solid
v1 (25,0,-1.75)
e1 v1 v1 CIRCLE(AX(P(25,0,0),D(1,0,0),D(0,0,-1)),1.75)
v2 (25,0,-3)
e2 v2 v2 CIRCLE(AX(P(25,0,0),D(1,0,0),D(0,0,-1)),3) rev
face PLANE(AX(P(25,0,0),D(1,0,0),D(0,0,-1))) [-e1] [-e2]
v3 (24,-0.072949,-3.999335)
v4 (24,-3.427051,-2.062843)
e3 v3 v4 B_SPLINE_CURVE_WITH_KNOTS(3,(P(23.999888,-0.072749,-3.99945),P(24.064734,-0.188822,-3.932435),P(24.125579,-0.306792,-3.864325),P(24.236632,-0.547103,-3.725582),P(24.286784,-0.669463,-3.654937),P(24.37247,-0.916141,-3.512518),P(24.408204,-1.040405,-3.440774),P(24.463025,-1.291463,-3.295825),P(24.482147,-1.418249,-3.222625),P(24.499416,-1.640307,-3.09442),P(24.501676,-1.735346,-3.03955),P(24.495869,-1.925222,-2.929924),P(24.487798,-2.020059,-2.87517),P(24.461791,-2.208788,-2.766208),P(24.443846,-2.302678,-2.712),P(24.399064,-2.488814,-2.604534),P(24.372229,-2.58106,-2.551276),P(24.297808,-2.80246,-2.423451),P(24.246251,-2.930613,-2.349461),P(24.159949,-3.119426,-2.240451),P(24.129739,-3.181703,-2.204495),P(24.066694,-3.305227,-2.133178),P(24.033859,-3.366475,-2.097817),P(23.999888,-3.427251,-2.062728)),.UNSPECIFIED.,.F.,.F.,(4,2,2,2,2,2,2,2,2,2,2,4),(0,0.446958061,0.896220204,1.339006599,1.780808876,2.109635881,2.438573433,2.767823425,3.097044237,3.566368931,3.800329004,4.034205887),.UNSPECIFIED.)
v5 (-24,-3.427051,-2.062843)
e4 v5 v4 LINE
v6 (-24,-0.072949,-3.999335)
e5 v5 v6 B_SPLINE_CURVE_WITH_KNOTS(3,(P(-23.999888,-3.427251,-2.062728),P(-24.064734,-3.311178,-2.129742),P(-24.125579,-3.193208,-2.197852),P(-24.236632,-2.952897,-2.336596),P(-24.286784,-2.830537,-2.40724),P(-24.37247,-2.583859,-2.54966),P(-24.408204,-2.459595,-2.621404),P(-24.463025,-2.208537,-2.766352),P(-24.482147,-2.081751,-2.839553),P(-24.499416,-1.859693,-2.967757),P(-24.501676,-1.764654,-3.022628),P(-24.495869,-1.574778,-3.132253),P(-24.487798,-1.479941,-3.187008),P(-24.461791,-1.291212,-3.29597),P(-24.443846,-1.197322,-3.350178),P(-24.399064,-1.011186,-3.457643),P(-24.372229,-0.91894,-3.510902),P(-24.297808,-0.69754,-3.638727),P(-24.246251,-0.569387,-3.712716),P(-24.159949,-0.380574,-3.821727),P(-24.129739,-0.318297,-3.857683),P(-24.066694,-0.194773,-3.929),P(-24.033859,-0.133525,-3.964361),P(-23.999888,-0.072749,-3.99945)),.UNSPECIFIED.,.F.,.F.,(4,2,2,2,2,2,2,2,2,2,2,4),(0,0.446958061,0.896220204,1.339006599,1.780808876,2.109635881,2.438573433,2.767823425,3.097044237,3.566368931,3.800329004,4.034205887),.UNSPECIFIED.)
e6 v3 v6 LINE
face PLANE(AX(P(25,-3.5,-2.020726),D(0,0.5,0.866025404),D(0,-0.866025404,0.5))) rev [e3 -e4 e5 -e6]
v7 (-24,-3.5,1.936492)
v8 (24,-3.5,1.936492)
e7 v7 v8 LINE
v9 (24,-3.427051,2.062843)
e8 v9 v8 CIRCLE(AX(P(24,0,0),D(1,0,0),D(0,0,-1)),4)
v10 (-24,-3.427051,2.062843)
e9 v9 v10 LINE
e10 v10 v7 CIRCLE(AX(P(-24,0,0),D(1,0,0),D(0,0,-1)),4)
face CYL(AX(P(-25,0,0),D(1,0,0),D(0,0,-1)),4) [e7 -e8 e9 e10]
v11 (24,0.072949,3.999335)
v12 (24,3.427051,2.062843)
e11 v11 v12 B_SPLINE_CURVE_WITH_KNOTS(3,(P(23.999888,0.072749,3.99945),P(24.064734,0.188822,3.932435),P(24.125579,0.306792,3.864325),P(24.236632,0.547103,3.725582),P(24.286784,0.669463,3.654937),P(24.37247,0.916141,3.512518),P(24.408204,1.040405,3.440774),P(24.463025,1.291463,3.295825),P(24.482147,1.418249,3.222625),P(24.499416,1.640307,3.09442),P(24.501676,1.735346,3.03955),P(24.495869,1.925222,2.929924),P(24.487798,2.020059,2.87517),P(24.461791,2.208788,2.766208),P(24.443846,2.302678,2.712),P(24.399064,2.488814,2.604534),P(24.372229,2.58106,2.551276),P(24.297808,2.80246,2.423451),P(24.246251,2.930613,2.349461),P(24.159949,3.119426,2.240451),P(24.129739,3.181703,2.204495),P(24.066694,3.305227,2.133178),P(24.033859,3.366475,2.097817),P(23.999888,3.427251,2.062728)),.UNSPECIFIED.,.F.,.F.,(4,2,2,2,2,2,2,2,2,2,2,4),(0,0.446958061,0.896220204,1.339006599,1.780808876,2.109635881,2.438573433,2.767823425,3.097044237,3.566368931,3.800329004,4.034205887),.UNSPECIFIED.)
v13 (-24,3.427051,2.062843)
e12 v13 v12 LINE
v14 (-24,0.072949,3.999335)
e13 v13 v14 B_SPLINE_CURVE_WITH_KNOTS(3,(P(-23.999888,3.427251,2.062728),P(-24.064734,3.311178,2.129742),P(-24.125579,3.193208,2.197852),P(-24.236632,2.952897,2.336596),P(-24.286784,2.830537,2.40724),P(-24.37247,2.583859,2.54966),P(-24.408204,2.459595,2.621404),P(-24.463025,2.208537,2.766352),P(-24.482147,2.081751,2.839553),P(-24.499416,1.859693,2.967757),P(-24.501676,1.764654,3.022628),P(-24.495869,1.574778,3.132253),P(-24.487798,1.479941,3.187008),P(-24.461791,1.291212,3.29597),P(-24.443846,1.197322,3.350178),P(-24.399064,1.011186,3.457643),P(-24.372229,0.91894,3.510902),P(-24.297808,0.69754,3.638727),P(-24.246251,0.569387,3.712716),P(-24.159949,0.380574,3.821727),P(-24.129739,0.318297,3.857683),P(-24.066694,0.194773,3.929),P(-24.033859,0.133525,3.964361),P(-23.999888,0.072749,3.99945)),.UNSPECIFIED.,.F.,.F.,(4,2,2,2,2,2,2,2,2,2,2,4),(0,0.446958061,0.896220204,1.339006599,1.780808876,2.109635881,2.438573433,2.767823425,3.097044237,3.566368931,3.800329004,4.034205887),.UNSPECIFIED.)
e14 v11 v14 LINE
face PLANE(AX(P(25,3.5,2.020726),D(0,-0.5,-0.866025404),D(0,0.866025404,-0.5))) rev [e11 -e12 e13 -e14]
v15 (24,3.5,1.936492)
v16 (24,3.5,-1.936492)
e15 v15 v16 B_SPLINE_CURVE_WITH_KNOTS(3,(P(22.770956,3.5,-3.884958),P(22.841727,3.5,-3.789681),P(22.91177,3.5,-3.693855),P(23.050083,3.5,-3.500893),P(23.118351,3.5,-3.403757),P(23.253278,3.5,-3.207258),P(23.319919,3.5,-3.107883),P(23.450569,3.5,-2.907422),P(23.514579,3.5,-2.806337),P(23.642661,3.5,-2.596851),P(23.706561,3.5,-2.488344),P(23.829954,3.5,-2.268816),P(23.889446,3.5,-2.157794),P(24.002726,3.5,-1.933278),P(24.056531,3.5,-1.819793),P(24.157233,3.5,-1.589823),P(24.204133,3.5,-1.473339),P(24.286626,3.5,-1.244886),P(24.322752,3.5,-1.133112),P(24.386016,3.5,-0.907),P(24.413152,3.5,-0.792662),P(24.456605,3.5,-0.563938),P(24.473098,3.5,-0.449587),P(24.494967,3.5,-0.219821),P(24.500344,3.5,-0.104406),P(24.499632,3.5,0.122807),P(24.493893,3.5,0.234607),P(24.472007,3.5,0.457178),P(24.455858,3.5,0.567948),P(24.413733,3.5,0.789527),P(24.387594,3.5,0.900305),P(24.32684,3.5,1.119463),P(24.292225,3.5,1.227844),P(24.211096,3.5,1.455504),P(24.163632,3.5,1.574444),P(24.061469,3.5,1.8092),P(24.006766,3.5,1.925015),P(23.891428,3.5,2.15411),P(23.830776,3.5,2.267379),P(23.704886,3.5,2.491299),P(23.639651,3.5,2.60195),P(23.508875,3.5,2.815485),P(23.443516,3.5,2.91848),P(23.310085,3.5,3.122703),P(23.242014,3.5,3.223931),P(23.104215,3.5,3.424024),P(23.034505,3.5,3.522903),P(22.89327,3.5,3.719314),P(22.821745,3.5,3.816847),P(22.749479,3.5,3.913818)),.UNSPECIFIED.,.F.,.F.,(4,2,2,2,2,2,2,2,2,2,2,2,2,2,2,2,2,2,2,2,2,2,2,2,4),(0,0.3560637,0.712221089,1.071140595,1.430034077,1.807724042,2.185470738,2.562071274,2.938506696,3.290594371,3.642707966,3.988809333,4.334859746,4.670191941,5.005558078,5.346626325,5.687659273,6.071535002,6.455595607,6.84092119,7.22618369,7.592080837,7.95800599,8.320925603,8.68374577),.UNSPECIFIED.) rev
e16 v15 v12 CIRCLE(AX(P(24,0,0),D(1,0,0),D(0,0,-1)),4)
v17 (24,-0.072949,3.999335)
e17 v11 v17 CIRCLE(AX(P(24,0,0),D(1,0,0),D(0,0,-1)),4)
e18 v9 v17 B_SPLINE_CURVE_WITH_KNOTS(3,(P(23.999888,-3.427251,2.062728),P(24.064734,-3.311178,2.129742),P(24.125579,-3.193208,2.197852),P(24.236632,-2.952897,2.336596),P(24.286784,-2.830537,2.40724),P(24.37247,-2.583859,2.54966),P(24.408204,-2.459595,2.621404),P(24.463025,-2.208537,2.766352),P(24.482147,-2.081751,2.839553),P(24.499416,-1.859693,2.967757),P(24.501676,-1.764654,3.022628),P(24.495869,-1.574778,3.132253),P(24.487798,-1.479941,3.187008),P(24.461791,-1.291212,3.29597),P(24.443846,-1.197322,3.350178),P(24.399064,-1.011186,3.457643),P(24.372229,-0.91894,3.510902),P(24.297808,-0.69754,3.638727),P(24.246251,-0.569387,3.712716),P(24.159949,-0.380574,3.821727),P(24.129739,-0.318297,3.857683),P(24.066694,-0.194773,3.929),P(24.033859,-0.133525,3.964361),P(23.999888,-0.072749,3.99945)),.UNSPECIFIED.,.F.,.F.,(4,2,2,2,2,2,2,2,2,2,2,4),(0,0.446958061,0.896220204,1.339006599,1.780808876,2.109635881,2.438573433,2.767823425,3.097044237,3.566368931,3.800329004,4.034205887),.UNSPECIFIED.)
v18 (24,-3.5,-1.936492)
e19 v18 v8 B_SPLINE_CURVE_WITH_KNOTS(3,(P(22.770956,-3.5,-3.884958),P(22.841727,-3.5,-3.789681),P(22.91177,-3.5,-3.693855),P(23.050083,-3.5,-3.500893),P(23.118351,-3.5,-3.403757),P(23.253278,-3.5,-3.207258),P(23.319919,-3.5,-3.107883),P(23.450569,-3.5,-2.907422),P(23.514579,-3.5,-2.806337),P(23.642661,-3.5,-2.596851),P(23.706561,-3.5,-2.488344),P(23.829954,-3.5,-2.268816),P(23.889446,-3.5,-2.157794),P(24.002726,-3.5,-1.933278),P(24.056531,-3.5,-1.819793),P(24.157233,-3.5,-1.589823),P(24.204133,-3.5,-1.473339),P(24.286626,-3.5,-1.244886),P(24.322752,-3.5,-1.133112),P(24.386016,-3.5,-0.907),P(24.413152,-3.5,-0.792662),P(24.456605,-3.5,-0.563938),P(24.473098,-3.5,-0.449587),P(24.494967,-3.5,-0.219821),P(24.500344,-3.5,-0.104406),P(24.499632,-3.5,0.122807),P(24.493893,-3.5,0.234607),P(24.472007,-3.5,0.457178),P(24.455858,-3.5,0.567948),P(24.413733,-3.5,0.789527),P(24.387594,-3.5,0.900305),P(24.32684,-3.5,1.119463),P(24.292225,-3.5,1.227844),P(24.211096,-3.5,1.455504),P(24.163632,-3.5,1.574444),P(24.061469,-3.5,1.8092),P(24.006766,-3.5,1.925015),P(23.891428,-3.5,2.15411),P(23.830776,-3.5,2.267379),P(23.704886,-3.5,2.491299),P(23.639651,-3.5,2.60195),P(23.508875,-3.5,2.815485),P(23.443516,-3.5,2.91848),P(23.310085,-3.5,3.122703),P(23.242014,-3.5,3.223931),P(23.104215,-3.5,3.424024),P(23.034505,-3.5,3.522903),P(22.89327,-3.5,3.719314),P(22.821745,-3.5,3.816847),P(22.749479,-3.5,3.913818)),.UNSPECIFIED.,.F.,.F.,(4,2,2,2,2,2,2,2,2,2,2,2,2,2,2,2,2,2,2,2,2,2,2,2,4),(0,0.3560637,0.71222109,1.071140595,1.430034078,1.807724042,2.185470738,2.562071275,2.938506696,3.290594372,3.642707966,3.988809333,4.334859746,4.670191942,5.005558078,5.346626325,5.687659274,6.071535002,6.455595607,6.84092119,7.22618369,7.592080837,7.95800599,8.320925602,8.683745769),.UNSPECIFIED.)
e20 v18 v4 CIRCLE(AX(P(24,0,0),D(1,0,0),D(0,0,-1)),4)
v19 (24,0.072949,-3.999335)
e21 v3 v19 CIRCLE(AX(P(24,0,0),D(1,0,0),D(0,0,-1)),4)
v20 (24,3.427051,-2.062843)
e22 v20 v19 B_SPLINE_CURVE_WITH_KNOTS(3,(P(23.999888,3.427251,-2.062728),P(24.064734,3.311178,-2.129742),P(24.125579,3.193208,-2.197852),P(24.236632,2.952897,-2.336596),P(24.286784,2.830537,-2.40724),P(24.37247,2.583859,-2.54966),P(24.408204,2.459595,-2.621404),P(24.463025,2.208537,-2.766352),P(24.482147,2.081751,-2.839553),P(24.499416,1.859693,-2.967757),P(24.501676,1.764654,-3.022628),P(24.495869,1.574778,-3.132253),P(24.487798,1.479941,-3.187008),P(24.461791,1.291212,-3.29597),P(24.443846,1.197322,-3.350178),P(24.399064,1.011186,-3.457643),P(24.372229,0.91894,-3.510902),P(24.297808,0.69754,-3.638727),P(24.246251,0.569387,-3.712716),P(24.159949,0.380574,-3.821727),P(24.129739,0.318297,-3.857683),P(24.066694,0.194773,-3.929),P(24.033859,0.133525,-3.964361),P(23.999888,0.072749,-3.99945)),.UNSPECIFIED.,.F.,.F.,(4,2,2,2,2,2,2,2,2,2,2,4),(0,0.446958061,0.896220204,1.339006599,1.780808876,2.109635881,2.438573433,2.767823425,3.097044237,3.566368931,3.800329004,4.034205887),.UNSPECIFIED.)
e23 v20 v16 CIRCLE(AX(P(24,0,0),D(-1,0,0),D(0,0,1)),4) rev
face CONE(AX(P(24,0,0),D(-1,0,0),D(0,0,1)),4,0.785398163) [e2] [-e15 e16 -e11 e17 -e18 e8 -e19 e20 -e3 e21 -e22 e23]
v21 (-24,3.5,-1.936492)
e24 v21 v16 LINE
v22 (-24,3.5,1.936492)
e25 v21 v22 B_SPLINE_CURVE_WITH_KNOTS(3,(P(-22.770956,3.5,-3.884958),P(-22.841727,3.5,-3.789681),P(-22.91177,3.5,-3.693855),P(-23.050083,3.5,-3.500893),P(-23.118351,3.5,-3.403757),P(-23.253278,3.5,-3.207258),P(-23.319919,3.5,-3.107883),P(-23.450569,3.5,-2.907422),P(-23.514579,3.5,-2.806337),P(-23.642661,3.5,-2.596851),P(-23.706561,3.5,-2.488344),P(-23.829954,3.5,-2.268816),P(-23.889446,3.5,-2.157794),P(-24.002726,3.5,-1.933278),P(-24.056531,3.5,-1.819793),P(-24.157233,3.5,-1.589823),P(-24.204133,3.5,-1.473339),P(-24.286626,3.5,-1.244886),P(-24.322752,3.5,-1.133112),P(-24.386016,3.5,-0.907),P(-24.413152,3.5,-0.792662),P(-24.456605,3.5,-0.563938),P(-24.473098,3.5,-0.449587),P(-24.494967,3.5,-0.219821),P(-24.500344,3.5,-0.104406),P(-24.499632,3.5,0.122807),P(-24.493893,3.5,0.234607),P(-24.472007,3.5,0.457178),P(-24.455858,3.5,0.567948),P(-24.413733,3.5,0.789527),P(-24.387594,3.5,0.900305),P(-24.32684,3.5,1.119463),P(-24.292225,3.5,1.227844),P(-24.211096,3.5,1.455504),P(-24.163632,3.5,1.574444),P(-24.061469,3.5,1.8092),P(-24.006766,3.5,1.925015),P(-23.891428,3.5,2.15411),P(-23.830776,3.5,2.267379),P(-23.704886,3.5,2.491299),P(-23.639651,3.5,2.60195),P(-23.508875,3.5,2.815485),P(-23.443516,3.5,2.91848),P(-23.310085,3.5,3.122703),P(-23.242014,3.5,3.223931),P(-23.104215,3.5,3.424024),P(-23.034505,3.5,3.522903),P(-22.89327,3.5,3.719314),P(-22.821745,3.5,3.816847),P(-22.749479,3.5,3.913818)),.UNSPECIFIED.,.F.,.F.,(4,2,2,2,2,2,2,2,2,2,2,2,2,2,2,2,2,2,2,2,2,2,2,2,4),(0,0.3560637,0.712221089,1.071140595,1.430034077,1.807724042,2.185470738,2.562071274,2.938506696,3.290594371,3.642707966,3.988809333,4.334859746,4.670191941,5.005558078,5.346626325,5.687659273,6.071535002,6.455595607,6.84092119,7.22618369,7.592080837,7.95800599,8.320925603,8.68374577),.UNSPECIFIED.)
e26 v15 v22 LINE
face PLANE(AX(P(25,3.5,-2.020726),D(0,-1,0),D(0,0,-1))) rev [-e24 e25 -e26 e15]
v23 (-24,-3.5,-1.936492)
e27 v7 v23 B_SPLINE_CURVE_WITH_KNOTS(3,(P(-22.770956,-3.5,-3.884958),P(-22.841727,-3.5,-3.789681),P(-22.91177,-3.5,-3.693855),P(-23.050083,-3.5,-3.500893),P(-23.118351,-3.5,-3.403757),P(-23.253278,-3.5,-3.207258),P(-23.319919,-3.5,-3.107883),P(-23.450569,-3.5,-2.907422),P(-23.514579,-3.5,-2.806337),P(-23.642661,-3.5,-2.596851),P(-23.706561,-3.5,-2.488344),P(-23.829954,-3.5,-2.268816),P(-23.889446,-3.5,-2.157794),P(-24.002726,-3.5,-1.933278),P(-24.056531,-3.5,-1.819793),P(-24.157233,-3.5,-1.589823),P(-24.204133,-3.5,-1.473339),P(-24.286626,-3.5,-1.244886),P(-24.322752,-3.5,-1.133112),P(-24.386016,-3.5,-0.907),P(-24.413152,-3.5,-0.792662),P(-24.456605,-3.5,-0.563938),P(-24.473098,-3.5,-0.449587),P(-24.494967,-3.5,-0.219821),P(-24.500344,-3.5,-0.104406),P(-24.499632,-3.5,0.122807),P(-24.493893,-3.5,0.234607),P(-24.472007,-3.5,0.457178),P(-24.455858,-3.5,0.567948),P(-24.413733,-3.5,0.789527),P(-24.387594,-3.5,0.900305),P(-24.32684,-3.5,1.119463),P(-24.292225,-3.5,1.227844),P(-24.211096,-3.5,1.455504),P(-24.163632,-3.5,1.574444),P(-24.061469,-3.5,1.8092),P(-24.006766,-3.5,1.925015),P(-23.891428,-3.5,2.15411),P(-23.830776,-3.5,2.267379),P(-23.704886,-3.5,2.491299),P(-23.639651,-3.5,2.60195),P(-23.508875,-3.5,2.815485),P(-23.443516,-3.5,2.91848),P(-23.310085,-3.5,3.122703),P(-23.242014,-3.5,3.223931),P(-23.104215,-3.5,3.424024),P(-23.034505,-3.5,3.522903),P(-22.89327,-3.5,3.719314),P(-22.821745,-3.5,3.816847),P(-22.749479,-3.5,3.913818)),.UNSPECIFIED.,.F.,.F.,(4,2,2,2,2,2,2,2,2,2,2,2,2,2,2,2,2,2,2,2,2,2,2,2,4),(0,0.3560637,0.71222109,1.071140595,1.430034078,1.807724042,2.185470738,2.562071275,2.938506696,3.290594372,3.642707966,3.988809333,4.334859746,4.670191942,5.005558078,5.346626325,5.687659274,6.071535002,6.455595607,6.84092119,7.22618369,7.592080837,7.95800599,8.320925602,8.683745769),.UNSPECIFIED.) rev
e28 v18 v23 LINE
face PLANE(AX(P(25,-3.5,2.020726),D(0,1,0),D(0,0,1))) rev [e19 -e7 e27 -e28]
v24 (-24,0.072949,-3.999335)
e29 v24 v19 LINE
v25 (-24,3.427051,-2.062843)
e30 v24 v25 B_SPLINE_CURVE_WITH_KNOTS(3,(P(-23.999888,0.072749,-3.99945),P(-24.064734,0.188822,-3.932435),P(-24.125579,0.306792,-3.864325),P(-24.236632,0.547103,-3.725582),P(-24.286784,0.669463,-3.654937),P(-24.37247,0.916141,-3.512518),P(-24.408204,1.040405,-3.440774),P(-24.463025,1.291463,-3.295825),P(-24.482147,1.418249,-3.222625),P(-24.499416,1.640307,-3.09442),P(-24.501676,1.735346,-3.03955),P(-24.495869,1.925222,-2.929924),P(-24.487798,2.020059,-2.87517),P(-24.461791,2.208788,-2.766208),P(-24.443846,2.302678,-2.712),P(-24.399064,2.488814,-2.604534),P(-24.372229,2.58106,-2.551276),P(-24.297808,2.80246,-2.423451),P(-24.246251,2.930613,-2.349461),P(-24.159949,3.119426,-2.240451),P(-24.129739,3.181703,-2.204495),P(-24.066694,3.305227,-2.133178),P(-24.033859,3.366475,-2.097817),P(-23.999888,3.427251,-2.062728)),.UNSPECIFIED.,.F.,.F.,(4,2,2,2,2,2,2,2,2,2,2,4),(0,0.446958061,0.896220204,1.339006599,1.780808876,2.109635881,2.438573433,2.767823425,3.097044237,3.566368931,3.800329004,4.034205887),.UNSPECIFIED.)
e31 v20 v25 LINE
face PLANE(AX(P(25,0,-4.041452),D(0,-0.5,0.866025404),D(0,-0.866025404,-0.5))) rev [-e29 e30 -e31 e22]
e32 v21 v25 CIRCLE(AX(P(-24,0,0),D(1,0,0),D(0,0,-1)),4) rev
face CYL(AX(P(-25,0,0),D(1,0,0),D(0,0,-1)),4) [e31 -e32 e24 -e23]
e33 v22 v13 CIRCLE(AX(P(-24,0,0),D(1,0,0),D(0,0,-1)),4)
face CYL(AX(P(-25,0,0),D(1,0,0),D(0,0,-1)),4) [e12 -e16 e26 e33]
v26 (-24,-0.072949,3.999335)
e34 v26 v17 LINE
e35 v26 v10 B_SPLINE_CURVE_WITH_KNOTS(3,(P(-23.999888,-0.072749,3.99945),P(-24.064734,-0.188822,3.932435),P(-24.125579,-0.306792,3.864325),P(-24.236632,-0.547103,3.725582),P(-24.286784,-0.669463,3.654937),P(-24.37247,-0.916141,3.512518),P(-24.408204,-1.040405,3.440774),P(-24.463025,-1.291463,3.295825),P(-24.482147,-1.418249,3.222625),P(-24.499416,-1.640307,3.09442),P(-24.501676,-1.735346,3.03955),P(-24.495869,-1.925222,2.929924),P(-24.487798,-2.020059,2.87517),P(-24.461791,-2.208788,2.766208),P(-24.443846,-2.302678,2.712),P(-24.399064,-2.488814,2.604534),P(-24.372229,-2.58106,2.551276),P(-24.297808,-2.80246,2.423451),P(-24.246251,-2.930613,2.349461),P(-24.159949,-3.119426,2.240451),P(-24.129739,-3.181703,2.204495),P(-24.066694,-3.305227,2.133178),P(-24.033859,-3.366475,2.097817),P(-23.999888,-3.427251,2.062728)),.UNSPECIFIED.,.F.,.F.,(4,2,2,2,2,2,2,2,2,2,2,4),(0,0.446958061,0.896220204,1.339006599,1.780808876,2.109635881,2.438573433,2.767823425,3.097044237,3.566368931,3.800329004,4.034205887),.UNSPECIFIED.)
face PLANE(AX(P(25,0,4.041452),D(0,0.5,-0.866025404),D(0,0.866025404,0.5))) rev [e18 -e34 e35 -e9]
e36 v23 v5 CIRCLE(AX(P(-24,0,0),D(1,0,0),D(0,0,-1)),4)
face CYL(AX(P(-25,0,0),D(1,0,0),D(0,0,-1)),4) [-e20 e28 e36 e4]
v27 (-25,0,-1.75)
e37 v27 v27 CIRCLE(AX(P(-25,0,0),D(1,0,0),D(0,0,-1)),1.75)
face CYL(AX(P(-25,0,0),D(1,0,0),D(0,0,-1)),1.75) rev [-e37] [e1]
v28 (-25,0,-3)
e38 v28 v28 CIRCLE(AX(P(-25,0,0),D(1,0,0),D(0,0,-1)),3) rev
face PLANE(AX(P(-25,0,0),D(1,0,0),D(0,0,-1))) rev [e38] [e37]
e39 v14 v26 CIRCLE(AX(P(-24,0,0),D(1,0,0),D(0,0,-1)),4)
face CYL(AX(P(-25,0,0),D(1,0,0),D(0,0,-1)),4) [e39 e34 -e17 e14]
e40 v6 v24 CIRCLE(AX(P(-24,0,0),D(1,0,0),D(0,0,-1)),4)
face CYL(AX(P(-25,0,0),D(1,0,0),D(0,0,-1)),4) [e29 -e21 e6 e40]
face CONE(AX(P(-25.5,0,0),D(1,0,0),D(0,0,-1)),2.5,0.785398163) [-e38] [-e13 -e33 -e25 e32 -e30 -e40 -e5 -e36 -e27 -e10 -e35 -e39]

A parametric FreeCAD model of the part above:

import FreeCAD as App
import Part
import Sketcher
from FreeCAD import Vector
Q = App.Units.Quantity

doc = App.newDocument("Part")
body = doc.addObject("PartDesign::Body", "Body")

# Sketch on YZ plane
sketch1 = body.newObject("Sketcher::SketchObject", "Sketch")
sketch1.AttachmentSupport = (doc.getObject("YZ_Plane"), [""])
sketch1.MapMode = "FlatFace"
sketch1.addGeometry(Part.LineSegment(Vector(0, -4, 0), Vector(3.5, -2, 0)), False)
sketch1.addGeometry(Part.LineSegment(Vector(3.5, -2, 0), Vector(3.5, 2, 0)), False)
sketch1.addGeometry(Part.LineSegment(Vector(3.5, 2, 0), Vector(0, 4, 0)), False)
sketch1.addGeometry(Part.LineSegment(Vector(0, 4, 0), Vector(-3.5, 2, 0)), False)
sketch1.addGeometry(Part.LineSegment(Vector(-3.5, 2, 0), Vector(-3.5, -2, 0)), False)
sketch1.addGeometry(Part.LineSegment(Vector(-3.5, -2, 0), Vector(0, -4, 0)), False)
sketch1.addConstraint(Sketcher.Constraint("Coincident", 0, 2, 1, 1))
sketch1.addConstraint(Sketcher.Constraint("Coincident", 1, 2, 2, 1))
sketch1.addConstraint(Sketcher.Constraint("Coincident", 2, 2, 3, 1))
sketch1.addConstraint(Sketcher.Constraint("Coincident", 3, 2, 4, 1))
sketch1.addConstraint(Sketcher.Constraint("Coincident", 4, 2, 5, 1))
sketch1.addConstraint(Sketcher.Constraint("Coincident", 5, 2, 0, 1))
sketch1.addConstraint(Sketcher.Constraint("Vertical", 1))
sketch1.addConstraint(Sketcher.Constraint("Vertical", 4))
sketch1.addConstraint(Sketcher.Constraint("Symmetric", 0, 2, 3, 2, -1, 1))
sketch1.addConstraint(Sketcher.Constraint("Symmetric", 2, 2, 5, 2, -1, 1))
sketch1.addConstraint(Sketcher.Constraint("PointOnObject", 2, 2, -2))
sketch1.addConstraint(Sketcher.Constraint("Parallel", 2, 5))
sketch1.addConstraint(Sketcher.Constraint("Horizontal", 1, 2, 3, 2))
sketch1.addConstraint(Sketcher.Constraint("Angle", 0, Q("30 deg")))
sketch1.addConstraint(Sketcher.Constraint("DistanceX", 3, 2, 1, 2, 7.0))
sketch1.addConstraint(Sketcher.Constraint("DistanceY", 1, 1, 1, 2, 4.041452))
pad1 = body.newObject("PartDesign::Pad", "Pad")
pad1.Profile = sketch1
pad1.Length = 50
pad1.Midplane = True

# Sketch on YZ plane
sketch2 = body.newObject("Sketcher::SketchObject", "Sketch001")
sketch2.AttachmentSupport = (doc.getObject("YZ_Plane"), [""])
sketch2.MapMode = "FlatFace"
sketch2.addGeometry(Part.Circle(Vector(0, 0, 0), Vector(0, 0, 1), 5), False)
sketch2.addGeometry(Part.Circle(Vector(0, 0, 0), Vector(0, 0, 1), 4), False)
sketch2.addConstraint(Sketcher.Constraint("Coincident", 0, 3, -1, 1))
sketch2.addConstraint(Sketcher.Constraint("Coincident", 1, 3, -1, 1))
sketch2.addConstraint(Sketcher.Constraint("Diameter", 0, 10.0))
sketch2.addConstraint(Sketcher.Constraint("Diameter", 1, 8.0))
pocket1 = body.newObject("PartDesign::Pocket", "Pocket")
pocket1.Profile = sketch2
pocket1.Type = "ThroughAll"
pocket1.Midplane = True

# Sketch on YZ plane
sketch3 = body.newObject("Sketcher::SketchObject", "Sketch002")
sketch3.AttachmentSupport = (doc.getObject("YZ_Plane"), [""])
sketch3.MapMode = "FlatFace"
sketch3.addGeometry(Part.Circle(Vector(0, 0, 0), Vector(0, 0, 1), 1.8), False)
sketch3.addConstraint(Sketcher.Constraint("Coincident", 0, 3, -1, 1))
sketch3.addConstraint(Sketcher.Constraint("Diameter", 0, 3.5))
pocket2 = body.newObject("PartDesign::Pocket", "Pocket001")
pocket2.Profile = sketch3
pocket2.Type = "ThroughAll"
pocket2.Midplane = True

# Sketch on XY plane
sketch4 = body.newObject("Sketcher::SketchObject", "Sketch003")
sketch4.AttachmentSupport = (doc.getObject("XY_Plane"), [""])
sketch4.MapMode = "FlatFace"
sketch4.addGeometry(Part.LineSegment(Vector(-24, 4, 0), Vector(-25.5, 4, 0)), False)
sketch4.addGeometry(Part.LineSegment(Vector(-25.5, 4, 0), Vector(-25.5, 2.5, 0)), False)
sketch4.addGeometry(Part.LineSegment(Vector(-25.5, 2.5, 0), Vector(-24, 4, 0)), False)
sketch4.addGeometry(Part.LineSegment(Vector(24, 4, 0), Vector(25.5, 2.5, 0)), False)
sketch4.addGeometry(Part.LineSegment(Vector(25.5, 2.5, 0), Vector(25.5, 4, 0)), False)
sketch4.addGeometry(Part.LineSegment(Vector(25.5, 4, 0), Vector(24, 4, 0)), False)
sketch4.addConstraint(Sketcher.Constraint("Coincident", 0, 2, 1, 1))
sketch4.addConstraint(Sketcher.Constraint("Coincident", 1, 2, 2, 1))
sketch4.addConstraint(Sketcher.Constraint("Coincident", 2, 2, 0, 1))
sketch4.addConstraint(Sketcher.Constraint("Coincident", 3, 2, 4, 1))
sketch4.addConstraint(Sketcher.Constraint("Coincident", 4, 2, 5, 1))
sketch4.addConstraint(Sketcher.Constraint("Coincident", 5, 2, 3, 1))
sketch4.addConstraint(Sketcher.Constraint("Horizontal", 0))
sketch4.addConstraint(Sketcher.Constraint("Vertical", 1))
sketch4.addConstraint(Sketcher.Constraint("Vertical", 4))
sketch4.addConstraint(Sketcher.Constraint("Horizontal", 5))
sketch4.addConstraint(Sketcher.Constraint("Symmetric", 1, 2, 3, 2, -2))
sketch4.addConstraint(Sketcher.Constraint("Symmetric", 2, 2, 5, 2, -2))
sketch4.addConstraint(Sketcher.Constraint("Perpendicular", 2, 3))
sketch4.addConstraint(Sketcher.Constraint("DistanceX", 0, 2, 0, 1, 1.5))
sketch4.addConstraint(Sketcher.Constraint("DistanceY", -1, 1, 0, 2, 4.0))
sketch4.addConstraint(Sketcher.Constraint("DistanceX", 2, 2, -1, 1, 24.0))
groove = body.newObject("PartDesign::Groove", "Groove")
groove.Profile = sketch4
groove.ReferenceAxis = (sketch4, ["H_Axis"])
groove.Angle = 360

doc.recompute()
